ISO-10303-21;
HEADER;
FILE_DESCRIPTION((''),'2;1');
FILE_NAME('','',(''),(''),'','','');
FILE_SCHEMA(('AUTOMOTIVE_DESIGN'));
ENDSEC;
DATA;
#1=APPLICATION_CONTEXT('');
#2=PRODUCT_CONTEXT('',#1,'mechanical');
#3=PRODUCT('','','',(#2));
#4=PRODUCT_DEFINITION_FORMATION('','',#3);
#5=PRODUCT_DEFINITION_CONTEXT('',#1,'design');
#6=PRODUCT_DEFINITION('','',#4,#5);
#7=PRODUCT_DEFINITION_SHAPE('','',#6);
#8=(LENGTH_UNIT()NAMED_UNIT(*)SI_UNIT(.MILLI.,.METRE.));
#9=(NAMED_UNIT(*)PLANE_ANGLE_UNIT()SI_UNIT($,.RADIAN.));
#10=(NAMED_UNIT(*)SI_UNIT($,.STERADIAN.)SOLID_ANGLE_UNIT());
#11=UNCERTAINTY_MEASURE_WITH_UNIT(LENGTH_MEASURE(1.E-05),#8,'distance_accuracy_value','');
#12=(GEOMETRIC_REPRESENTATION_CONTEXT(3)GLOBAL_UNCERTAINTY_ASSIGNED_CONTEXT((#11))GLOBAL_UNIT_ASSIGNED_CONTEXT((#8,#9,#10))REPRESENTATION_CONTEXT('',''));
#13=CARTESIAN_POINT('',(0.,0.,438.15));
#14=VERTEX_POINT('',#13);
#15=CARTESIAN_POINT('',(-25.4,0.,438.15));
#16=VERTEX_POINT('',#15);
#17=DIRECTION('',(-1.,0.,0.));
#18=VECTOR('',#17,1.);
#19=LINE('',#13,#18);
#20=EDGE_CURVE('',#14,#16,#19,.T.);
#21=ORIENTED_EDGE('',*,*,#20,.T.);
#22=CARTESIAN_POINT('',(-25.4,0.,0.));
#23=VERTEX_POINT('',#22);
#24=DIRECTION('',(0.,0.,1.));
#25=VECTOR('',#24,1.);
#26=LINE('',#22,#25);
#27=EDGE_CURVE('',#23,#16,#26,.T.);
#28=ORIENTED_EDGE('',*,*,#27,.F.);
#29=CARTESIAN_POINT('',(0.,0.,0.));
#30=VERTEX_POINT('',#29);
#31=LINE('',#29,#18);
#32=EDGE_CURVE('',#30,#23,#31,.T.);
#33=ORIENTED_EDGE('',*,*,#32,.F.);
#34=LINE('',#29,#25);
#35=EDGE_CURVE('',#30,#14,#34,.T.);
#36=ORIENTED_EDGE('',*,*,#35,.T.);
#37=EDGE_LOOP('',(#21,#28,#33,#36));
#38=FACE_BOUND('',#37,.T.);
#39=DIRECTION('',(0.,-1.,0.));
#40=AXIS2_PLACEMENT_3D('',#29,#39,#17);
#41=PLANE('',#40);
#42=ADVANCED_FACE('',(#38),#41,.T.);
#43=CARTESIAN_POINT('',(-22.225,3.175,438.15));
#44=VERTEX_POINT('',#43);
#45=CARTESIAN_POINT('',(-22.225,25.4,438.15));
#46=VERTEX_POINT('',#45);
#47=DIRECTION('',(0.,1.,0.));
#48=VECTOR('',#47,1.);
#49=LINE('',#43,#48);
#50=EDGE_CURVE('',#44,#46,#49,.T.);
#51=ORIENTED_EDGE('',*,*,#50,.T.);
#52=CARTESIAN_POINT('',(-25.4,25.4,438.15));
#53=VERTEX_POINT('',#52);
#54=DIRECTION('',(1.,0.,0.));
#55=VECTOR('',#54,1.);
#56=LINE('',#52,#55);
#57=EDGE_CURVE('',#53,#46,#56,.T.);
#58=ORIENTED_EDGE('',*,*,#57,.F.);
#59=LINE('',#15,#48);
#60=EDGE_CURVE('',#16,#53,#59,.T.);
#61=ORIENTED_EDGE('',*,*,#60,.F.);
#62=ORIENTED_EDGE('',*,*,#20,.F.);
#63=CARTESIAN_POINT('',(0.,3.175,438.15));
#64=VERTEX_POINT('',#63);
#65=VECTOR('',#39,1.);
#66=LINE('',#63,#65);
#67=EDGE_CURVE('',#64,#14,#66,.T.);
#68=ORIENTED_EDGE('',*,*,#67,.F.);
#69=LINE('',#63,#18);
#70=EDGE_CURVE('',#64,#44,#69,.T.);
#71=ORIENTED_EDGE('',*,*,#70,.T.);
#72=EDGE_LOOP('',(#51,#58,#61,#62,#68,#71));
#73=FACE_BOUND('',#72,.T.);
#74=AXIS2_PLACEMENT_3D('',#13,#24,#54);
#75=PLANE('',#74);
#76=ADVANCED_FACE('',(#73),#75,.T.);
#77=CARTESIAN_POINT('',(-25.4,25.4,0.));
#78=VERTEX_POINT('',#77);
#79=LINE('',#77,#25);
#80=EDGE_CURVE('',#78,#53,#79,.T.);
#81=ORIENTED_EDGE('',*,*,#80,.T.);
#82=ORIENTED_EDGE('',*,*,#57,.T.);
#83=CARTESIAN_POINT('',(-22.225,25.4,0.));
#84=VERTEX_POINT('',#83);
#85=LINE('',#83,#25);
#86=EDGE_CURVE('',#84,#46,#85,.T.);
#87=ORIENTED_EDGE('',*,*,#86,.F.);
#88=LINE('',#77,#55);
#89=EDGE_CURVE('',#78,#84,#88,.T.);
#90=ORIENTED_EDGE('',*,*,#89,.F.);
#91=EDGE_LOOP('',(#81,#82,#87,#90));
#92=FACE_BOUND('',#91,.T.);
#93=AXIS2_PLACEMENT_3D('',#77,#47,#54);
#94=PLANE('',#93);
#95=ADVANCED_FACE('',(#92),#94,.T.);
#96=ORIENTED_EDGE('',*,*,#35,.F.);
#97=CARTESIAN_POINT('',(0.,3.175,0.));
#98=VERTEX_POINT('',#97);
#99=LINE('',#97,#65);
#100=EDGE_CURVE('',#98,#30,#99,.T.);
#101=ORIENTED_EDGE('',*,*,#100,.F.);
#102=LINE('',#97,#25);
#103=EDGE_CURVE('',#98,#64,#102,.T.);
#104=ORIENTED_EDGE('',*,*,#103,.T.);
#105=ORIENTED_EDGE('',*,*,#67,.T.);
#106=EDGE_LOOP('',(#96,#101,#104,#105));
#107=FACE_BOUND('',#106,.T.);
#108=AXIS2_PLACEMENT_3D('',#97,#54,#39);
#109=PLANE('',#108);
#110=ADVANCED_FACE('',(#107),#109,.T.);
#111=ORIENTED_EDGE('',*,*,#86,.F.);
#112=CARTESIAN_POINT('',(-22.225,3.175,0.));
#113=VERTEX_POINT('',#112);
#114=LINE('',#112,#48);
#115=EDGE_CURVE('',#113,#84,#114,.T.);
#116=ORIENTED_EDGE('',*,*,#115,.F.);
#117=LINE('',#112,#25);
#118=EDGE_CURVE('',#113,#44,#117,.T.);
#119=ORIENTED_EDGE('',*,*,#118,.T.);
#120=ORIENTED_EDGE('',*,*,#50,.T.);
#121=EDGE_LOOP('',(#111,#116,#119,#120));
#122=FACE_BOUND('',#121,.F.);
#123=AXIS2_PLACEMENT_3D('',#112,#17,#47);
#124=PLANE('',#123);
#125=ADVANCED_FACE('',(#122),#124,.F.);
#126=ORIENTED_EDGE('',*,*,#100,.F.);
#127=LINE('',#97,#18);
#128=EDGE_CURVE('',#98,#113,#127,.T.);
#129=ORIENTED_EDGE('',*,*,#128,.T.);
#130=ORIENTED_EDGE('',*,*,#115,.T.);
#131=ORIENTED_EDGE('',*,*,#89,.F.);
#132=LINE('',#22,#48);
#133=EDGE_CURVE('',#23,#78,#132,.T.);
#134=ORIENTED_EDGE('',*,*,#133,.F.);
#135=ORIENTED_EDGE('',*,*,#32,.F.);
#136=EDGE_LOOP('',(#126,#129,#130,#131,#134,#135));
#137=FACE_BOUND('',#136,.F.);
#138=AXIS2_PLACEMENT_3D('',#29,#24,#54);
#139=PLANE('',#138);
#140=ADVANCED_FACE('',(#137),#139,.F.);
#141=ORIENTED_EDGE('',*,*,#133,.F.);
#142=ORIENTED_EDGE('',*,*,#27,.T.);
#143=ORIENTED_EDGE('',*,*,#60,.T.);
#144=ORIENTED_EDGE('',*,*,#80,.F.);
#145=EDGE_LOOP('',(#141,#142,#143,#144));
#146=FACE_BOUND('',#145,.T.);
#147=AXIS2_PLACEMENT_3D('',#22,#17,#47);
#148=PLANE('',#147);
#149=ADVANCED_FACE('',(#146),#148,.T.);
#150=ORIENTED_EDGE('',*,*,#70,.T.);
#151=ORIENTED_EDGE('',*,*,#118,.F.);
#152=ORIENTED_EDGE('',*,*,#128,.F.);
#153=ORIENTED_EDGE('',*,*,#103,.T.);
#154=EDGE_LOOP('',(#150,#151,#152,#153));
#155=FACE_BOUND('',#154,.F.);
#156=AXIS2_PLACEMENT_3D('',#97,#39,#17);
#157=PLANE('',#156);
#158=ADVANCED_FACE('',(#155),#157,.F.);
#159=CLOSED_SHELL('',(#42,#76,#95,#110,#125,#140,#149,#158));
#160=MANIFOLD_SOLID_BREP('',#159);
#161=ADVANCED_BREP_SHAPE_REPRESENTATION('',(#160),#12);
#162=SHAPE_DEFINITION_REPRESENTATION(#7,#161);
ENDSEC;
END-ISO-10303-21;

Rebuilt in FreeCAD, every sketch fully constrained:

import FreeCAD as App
import Part
import Sketcher
Q = App.Units.Quantity


def add_polygon(sketch, points):
    """Adds a closed chain of lines whose ends are joined by coincident constraints."""
    first, n = sketch.GeometryCount, len(points)
    for a, b in zip(points, points[1:] + points[:1]):
        sketch.addGeometry(Part.LineSegment(App.Vector(*a, 0), App.Vector(*b, 0)), False)
    for i in range(n):
        sketch.addConstraint(Sketcher.Constraint("Coincident", first + i, 2, first + (i + 1) % n, 1))

doc = App.newDocument("Part")
body = doc.addObject("PartDesign::Body", "Body")

# Sketch on XY plane
sketch1 = doc.addObject("Sketcher::SketchObject", "Sketch")
body.addObject(sketch1)
sketch1.AttachmentSupport = (doc.XY_Plane, [""])
sketch1.MapMode = "FlatFace"
add_polygon(sketch1, [(-25.4, 0), (0, 0), (0, 3.2), (-22.2, 3.2), (-22.2, 25.4), (-25.4, 25.4)])  # lines 0-5
sketch1.addConstraint([
    Sketcher.Constraint("Horizontal", 0),
    Sketcher.Constraint("Vertical", 1),
    Sketcher.Constraint("Horizontal", 2),
    Sketcher.Constraint("Vertical", 3),
    Sketcher.Constraint("Horizontal", 4),
    Sketcher.Constraint("Vertical", 5),
    Sketcher.Constraint("Coincident", 0, 2, -1, 1),
    Sketcher.Constraint("Equal", 4, 1),
    Sketcher.Constraint("Equal", 2, 3),
    Sketcher.Constraint("DistanceX", 0, 1, 0, 2, Q("1 in")),
    Sketcher.Constraint("DistanceX", 4, 2, 4, 1, Q("0.125 in")),
])
pad1 = doc.addObject("PartDesign::Pad", "Pad")
body.addObject(pad1)
pad1.Profile = sketch1
pad1.Length = Q("17.25 in")

doc.recompute()
